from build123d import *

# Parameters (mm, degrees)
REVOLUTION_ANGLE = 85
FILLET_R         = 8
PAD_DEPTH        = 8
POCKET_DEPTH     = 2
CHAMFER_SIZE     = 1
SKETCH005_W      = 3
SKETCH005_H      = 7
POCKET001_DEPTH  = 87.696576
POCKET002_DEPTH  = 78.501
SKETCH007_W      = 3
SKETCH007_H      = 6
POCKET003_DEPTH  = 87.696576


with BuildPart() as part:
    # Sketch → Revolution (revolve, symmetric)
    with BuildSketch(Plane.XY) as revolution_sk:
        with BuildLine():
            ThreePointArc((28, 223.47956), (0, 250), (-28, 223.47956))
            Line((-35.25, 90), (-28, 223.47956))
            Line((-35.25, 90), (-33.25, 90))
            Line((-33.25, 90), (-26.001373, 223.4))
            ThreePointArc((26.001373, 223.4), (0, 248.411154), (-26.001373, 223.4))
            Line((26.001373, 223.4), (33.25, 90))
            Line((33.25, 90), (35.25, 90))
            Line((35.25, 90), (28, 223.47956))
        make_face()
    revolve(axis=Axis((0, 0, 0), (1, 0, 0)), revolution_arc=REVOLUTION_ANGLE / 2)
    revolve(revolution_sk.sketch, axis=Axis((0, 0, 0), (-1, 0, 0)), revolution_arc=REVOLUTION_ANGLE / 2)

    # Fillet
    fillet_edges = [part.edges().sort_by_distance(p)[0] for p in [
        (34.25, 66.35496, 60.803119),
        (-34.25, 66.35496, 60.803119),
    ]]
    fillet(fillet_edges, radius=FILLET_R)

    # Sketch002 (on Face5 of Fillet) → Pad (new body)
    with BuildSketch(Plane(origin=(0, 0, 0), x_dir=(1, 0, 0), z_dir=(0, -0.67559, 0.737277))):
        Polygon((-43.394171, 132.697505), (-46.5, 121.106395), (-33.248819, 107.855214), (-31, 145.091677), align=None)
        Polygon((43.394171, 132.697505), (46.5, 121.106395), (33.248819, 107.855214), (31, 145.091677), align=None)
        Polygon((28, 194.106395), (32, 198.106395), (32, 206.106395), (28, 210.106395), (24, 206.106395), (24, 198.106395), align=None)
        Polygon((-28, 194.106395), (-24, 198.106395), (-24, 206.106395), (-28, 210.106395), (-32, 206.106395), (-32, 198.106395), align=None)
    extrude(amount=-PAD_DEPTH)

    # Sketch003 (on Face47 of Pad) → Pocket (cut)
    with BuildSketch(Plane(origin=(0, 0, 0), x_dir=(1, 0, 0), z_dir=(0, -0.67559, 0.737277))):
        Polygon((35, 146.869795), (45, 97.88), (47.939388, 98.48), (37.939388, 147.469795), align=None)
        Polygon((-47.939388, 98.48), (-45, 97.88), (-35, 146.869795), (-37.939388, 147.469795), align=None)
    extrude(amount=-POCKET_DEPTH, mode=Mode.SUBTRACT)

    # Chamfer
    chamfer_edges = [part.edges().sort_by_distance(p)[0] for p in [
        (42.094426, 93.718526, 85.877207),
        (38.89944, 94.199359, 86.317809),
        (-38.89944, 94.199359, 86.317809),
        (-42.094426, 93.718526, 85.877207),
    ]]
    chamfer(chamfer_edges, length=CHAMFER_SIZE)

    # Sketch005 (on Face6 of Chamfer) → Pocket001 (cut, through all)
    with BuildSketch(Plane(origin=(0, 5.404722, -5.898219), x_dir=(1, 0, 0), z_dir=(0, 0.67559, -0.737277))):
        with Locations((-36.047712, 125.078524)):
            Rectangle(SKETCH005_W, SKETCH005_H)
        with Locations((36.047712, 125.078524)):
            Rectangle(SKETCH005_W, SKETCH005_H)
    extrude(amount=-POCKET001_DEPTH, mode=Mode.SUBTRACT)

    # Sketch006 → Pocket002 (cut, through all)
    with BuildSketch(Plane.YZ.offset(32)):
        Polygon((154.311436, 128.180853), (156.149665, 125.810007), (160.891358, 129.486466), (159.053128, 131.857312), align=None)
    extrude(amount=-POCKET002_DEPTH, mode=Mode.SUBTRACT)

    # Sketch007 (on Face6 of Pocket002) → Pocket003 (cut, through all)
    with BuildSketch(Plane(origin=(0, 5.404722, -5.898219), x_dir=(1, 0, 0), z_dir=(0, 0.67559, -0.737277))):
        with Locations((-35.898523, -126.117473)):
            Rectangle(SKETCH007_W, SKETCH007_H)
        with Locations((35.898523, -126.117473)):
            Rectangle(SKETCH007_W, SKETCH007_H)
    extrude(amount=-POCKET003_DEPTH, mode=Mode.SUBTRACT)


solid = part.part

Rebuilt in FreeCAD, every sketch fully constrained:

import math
import FreeCAD as App
import Part
import Sketcher
Q = App.Units.Quantity


def edges_at(feature, points):
    """Names of the edges that pass closest to the given points."""
    edges = feature.Shape.Edges
    near = lambda p: min(range(len(edges)), key=lambda i: edges[i].distToShape(Part.Vertex(*p))[0])
    return sorted({f"Edge{near(p) + 1}" for p in points})


def add_polygon(sketch, points):
    """Adds a closed chain of lines whose ends are joined by coincident constraints."""
    first, n = sketch.GeometryCount, len(points)
    for a, b in zip(points, points[1:] + points[:1]):
        sketch.addGeometry(Part.LineSegment(App.Vector(*a, 0), App.Vector(*b, 0)), False)
    for i in range(n):
        sketch.addConstraint(Sketcher.Constraint("Coincident", first + i, 2, first + (i + 1) % n, 1))

doc = App.newDocument("Part")
body = doc.addObject("PartDesign::Body", "Body")

sketch1 = body.newObject("Sketcher::SketchObject", "Sketch")
sketch1.AttachmentSupport = (doc.getObject("XY_Plane"), [""])
sketch1.MapMode = "FlatFace"
sketch1.addGeometry([
    Part.ArcOfCircle(Part.Circle(App.Vector(0, 222, 0), App.Vector(0, 0, 1), 28), math.radians(3), math.radians(177)),
    Part.LineSegment(App.Vector(-28, 223.5, 0), App.Vector(-35.2, 90, 0)),
    Part.LineSegment(App.Vector(-35.2, 90, 0), App.Vector(-33.2, 90, 0)),
    Part.LineSegment(App.Vector(-33.2, 90, 0), App.Vector(-26, 223.4, 0)),
    Part.ArcOfCircle(Part.Circle(App.Vector(0, 222.4, 0), App.Vector(0, 0, 1), 26), math.radians(2), math.radians(178)),
    Part.LineSegment(App.Vector(26, 223.4, 0), App.Vector(33.2, 90, 0)),
    Part.LineSegment(App.Vector(33.2, 90, 0), App.Vector(35.2, 90, 0)),
    Part.LineSegment(App.Vector(35.2, 90, 0), App.Vector(28, 223.5, 0)),
], False)
sketch1.addConstraint([
    Sketcher.Constraint("Tangent", 0, 2, 1, 1),
    Sketcher.Constraint("Coincident", 1, 2, 2, 1),
    Sketcher.Constraint("Coincident", 2, 2, 3, 1),
    Sketcher.Constraint("Coincident", 3, 2, 4, 2),
    Sketcher.Constraint("Coincident", 4, 1, 5, 1),
    Sketcher.Constraint("Coincident", 5, 2, 6, 1),
    Sketcher.Constraint("Coincident", 6, 2, 7, 1),
    Sketcher.Constraint("Tangent", 7, 2, 0, 1),
    Sketcher.Constraint("Horizontal", 2),
    Sketcher.Constraint("Horizontal", 6),
    Sketcher.Constraint("Symmetric", 3, 2, 4, 1, -2),
    Sketcher.Constraint("Symmetric", 2, 2, 5, 2, -2),
    Sketcher.Constraint("Symmetric", 0, 2, 7, 2, -2),
    Sketcher.Constraint("DistanceX", 2, 1, 2, 2, Q("2 mm")),
    Sketcher.Constraint("DistanceX", 0, 2, -1, 1, Q("28 mm")),
    Sketcher.Constraint("DistanceY", -1, 1, 1, 2, Q("90 mm")),
    Sketcher.Constraint("DistanceY", -1, 1, 3, 2, Q("223.4 mm")),
    Sketcher.Constraint("DistanceX", 2, 2, 5, 2, Q("66.5 mm")),
    Sketcher.Constraint("Radius", 4, Q("26.020975 mm")),
    Sketcher.Constraint("Distance", 1, Q("133.676308 mm")),
    Sketcher.Constraint("DistanceY", -1, 1, 4, 3, Q("222.390179 mm")),
])
revolution = body.newObject("PartDesign::Revolution", "Revolution")
revolution.Profile = sketch1
revolution.ReferenceAxis = (sketch1, ["H_Axis"])
revolution.Angle = 42.5

sketch2 = body.newObject("Sketcher::SketchObject", "Sketch001")
sketch2.AttachmentSupport = (doc.getObject("XY_Plane"), [""])
sketch2.MapMode = "FlatFace"
sketch2.addGeometry([
    Part.ArcOfCircle(Part.Circle(App.Vector(0, 222, 0), App.Vector(0, 0, 1), 28), math.radians(3), math.radians(177)),
    Part.LineSegment(App.Vector(-28, 223.5, 0), App.Vector(-35.2, 90, 0)),
    Part.LineSegment(App.Vector(-35.2, 90, 0), App.Vector(-33.2, 90, 0)),
    Part.LineSegment(App.Vector(-33.2, 90, 0), App.Vector(-26, 223.4, 0)),
    Part.ArcOfCircle(Part.Circle(App.Vector(0, 222.4, 0), App.Vector(0, 0, 1), 26), math.radians(2), math.radians(178)),
    Part.LineSegment(App.Vector(26, 223.4, 0), App.Vector(33.2, 90, 0)),
    Part.LineSegment(App.Vector(33.2, 90, 0), App.Vector(35.2, 90, 0)),
    Part.LineSegment(App.Vector(35.2, 90, 0), App.Vector(28, 223.5, 0)),
], False)
sketch2.addConstraint([
    Sketcher.Constraint("Tangent", 0, 2, 1, 1),
    Sketcher.Constraint("Coincident", 1, 2, 2, 1),
    Sketcher.Constraint("Coincident", 2, 2, 3, 1),
    Sketcher.Constraint("Coincident", 3, 2, 4, 2),
    Sketcher.Constraint("Coincident", 4, 1, 5, 1),
    Sketcher.Constraint("Coincident", 5, 2, 6, 1),
    Sketcher.Constraint("Coincident", 6, 2, 7, 1),
    Sketcher.Constraint("Tangent", 7, 2, 0, 1),
    Sketcher.Constraint("Horizontal", 2),
    Sketcher.Constraint("Horizontal", 6),
    Sketcher.Constraint("Symmetric", 3, 2, 4, 1, -2),
    Sketcher.Constraint("Symmetric", 2, 2, 5, 2, -2),
    Sketcher.Constraint("Symmetric", 0, 2, 7, 2, -2),
    Sketcher.Constraint("DistanceX", 2, 1, 2, 2, Q("2 mm")),
    Sketcher.Constraint("DistanceX", 0, 2, -1, 1, Q("28 mm")),
    Sketcher.Constraint("DistanceY", -1, 1, 1, 2, Q("90 mm")),
    Sketcher.Constraint("DistanceY", -1, 1, 3, 2, Q("223.4 mm")),
    Sketcher.Constraint("DistanceX", 2, 2, 5, 2, Q("66.5 mm")),
    Sketcher.Constraint("Radius", 4, Q("26.020975 mm")),
    Sketcher.Constraint("Distance", 1, Q("133.676308 mm")),
    Sketcher.Constraint("DistanceY", -1, 1, 4, 3, Q("222.390179 mm")),
])
revolution2 = body.newObject("PartDesign::Revolution", "Revolution001")
revolution2.Profile = sketch2
revolution2.ReferenceAxis = (sketch2, ["H_Axis"])
revolution2.Angle = 42.5
revolution2.Reversed = True
doc.recompute()

fillet = body.newObject("PartDesign::Fillet", "Fillet")
fillet.Base = (revolution2, edges_at(revolution2, [(34.25, 66.355, 60.803), (-34.25, 66.355, 60.803)]))
fillet.Radius = 8

sketch3 = body.newObject("Sketcher::SketchObject", "Sketch002")
sketch3.Placement = App.Placement(App.Vector(0, 0, 0), App.Rotation(App.Vector(1, 0, 0), App.Vector(0, 0.737277286, 0.675590263), App.Vector(0, -0.675590263, 0.737277286), "ZXY"))
add_polygon(sketch3, [(-43, 133), (-46, 121), (-33, 108), (-31, 145)])
add_polygon(sketch3, [(46, 121), (43, 133), (31, 145), (33, 108)])
add_polygon(sketch3, [(28, 194), (32, 198), (32, 206), (28, 210), (24, 206), (24, 198)])
add_polygon(sketch3, [(-28, 194), (-24, 198), (-24, 206), (-28, 210), (-32, 206), (-32, 198)])
sketch3.addConstraint([
    Sketcher.Constraint("Vertical", 9),
    Sketcher.Constraint("Vertical", 12),
    Sketcher.Constraint("Vertical", 15),
    Sketcher.Constraint("Vertical", 18),
    Sketcher.Constraint("Symmetric", 3, 2, 4, 2, -2),
    Sketcher.Constraint("Symmetric", 2, 2, 5, 2, -2),
    Sketcher.Constraint("Symmetric", 1, 2, 6, 2, -2),
    Sketcher.Constraint("Symmetric", 0, 2, 7, 2, -2),
    Sketcher.Constraint("Symmetric", 12, 2, 14, 2, -2),
    Sketcher.Constraint("Symmetric", 10, 2, 16, 2, -2),
    Sketcher.Constraint("Symmetric", 9, 2, 17, 2, -2),
    Sketcher.Constraint("Symmetric", 13, 2, 19, 2, -2),
    Sketcher.Constraint("Perpendicular", 1, 3),
    Sketcher.Constraint("Perpendicular", 3, 5),
    Sketcher.Constraint("Parallel", 7, 8),
    Sketcher.Constraint("Perpendicular", 8, 10),
    Sketcher.Constraint("Perpendicular", 10, 11),
    Sketcher.Constraint("Perpendicular", 11, 13),
    Sketcher.Constraint("Perpendicular", 14, 16),
    Sketcher.Constraint("Perpendicular", 17, 19),
    Sketcher.Constraint("Horizontal", 9, 2, 11, 2),
    Sketcher.Constraint("Horizontal", 8, 2, 12, 2),
    Sketcher.Constraint("DistanceY", 9, 1, 9, 2, Q("8 mm")),
    Sketcher.Constraint("Angle", 0, Q("-105.000002 deg")),
    Sketcher.Constraint("Distance", 0, Q("12 mm")),
    Sketcher.Constraint("DistanceX", 2, 2, -1, 1, Q("31 mm")),
    Sketcher.Constraint("DistanceX", -1, 1, 8, 2, Q("32 mm")),
    Sketcher.Constraint("DistanceX", -1, 1, 10, 2, Q("28 mm")),
    Sketcher.Constraint("DistanceY", 7, 2, 8, 2, Q("77 mm")),
    Sketcher.Constraint("DistanceX", 0, 2, -1, 1, Q("46.5 mm")),
    Sketcher.Constraint("Distance", 1, Q("18.74 mm")),
    Sketcher.Constraint("DistanceY", -1, 1, 0, 2, Q("121.106395 mm")),
])
pad1 = body.newObject("PartDesign::Pad", "Pad")
pad1.Profile = sketch3
pad1.Length = 8
pad1.Reversed = True

sketch4 = body.newObject("Sketcher::SketchObject", "Sketch003")
sketch4.Placement = App.Placement(App.Vector(0, 0, 0), App.Rotation(App.Vector(1, 0, 0), App.Vector(0, 0.737277286, 0.675590263), App.Vector(0, -0.675590263, 0.737277286), "ZXY"))
add_polygon(sketch4, [(35, 146.9), (45, 97.9), (47.9, 98.5), (37.9, 147.5)])
add_polygon(sketch4, [(-47.9, 98.5), (-45, 97.9), (-35, 146.9), (-37.9, 147.5)])
sketch4.addConstraint([
    Sketcher.Constraint("Symmetric", 0, 2, 4, 2, -2),
    Sketcher.Constraint("Symmetric", 3, 2, 5, 2, -2),
    Sketcher.Constraint("Symmetric", 2, 2, 6, 2, -2),
    Sketcher.Constraint("Symmetric", 1, 2, 7, 2, -2),
    Sketcher.Constraint("Perpendicular", 0, 1),
    Sketcher.Constraint("Perpendicular", 1, 2),
    Sketcher.Constraint("Perpendicular", 2, 3),
    Sketcher.Constraint("Distance", 0, Q("50 mm")),
    Sketcher.Constraint("Distance", 1, Q("3 mm")),
    Sketcher.Constraint("DistanceX", -1, 1, 0, 2, Q("45 mm")),
    Sketcher.Constraint("DistanceX", -1, 1, 3, 2, Q("35 mm")),
    Sketcher.Constraint("DistanceY", -1, 1, 0, 2, Q("97.88 mm")),
])
pocket1 = body.newObject("PartDesign::Pocket", "Pocket")
pocket1.Profile = sketch4
pocket1.Length = 2
doc.recompute()

chamfer = body.newObject("PartDesign::Chamfer", "Chamfer")
chamfer.Base = (pocket1, edges_at(pocket1, [
    (42.094, 93.719, 85.877),
    (38.899, 94.199, 86.318),
    (-38.899, 94.199, 86.318),
    (-42.094, 93.719, 85.877),
]))
chamfer.Size = 1

sketch5 = body.newObject("Sketcher::SketchObject", "Sketch004")
sketch5.Placement = App.Placement(App.Vector(0, 5.404722, -5.898219), App.Rotation(App.Vector(1, 0, 0), App.Vector(0, -0.737277286, -0.675590263), App.Vector(0, 0.675590263, -0.737277286), "ZXY"))
add_polygon(sketch5, [(-37.5, 128.6), (-37.5, 121.6), (-34.5, 121.6), (-34.5, 128.6)])
add_polygon(sketch5, [(34.5, 128.6), (34.5, 121.6), (37.5, 121.6), (37.5, 128.6)])
sketch5.addConstraint([
    Sketcher.Constraint("Vertical", 0),
    Sketcher.Constraint("Horizontal", 1),
    Sketcher.Constraint("Vertical", 2),
    Sketcher.Constraint("Horizontal", 3),
    Sketcher.Constraint("Vertical", 4),
    Sketcher.Constraint("Horizontal", 5),
    Sketcher.Constraint("Vertical", 6),
    Sketcher.Constraint("Horizontal", 7),
    Sketcher.Constraint("Symmetric", 1, 2, 4, 2, -2),
    Sketcher.Constraint("Symmetric", 3, 2, 6, 2, -2),
    Sketcher.Constraint("DistanceX", 1, 1, 1, 2, Q("3 mm")),
    Sketcher.Constraint("DistanceY", 0, 2, 0, 1, Q("7 mm")),
    Sketcher.Constraint("DistanceX", 0, 2, -1, 1, Q("37.547712 mm")),
    Sketcher.Constraint("DistanceY", -1, 1, 0, 2, Q("121.578524 mm")),
])
pocket2 = body.newObject("PartDesign::Pocket", "Pocket001")
pocket2.Profile = sketch5
pocket2.Type = "ThroughAll"

sketch6 = body.newObject("Sketcher::SketchObject", "Sketch005")
sketch6.AttachmentSupport = (doc.getObject("YZ_Plane"), [""])
sketch6.MapMode = "FlatFace"
sketch6.AttachmentOffset = App.Placement(App.Vector(0, 0, 32), App.Rotation())
add_polygon(sketch6, [(154.3, 128.2), (156.1, 125.8), (160.9, 129.5), (159.1, 131.9)])
sketch6.addConstraint([
    Sketcher.Constraint("Perpendicular", 0, 1),
    Sketcher.Constraint("Perpendicular", 1, 2),
    Sketcher.Constraint("Perpendicular", 2, 3),
    Sketcher.Constraint("Distance", 0, Q("2.999999 mm")),
    Sketcher.Constraint("Distance", 1, Q("6 mm")),
    Sketcher.Constraint("DistanceX", -1, 1, 1, 2, Q("160.891358 mm")),
    Sketcher.Constraint("DistanceY", -1, 1, 2, 2, Q("131.857312 mm")),
    Sketcher.Constraint("DistanceY", 0, 2, 1, 2, Q("3.676459 mm")),
])
pocket3 = body.newObject("PartDesign::Pocket", "Pocket002")
pocket3.Profile = sketch6
pocket3.Type = "ThroughAll"

sketch7 = body.newObject("Sketcher::SketchObject", "Sketch006")
sketch7.Placement = App.Placement(App.Vector(0, 5.404722, -5.898219), App.Rotation(App.Vector(1, 0, 0), App.Vector(0, -0.737277286, -0.675590263), App.Vector(0, 0.675590263, -0.737277286), "ZXY"))
add_polygon(sketch7, [(-37.4, -123.1), (-37.4, -129.1), (-34.4, -129.1), (-34.4, -123.1)])
add_polygon(sketch7, [(34.4, -123.1), (34.4, -129.1), (37.4, -129.1), (37.4, -123.1)])
sketch7.addConstraint([
    Sketcher.Constraint("Vertical", 0),
    Sketcher.Constraint("Horizontal", 1),
    Sketcher.Constraint("Vertical", 2),
    Sketcher.Constraint("Horizontal", 3),
    Sketcher.Constraint("Vertical", 4),
    Sketcher.Constraint("Horizontal", 5),
    Sketcher.Constraint("Vertical", 6),
    Sketcher.Constraint("Horizontal", 7),
    Sketcher.Constraint("Symmetric", 1, 2, 4, 2, -2),
    Sketcher.Constraint("Symmetric", 3, 2, 6, 2, -2),
    Sketcher.Constraint("DistanceX", 1, 1, 1, 2, Q("3 mm")),
    Sketcher.Constraint("DistanceY", 0, 2, 0, 1, Q("6 mm")),
    Sketcher.Constraint("DistanceX", 0, 2, -1, 1, Q("37.398523 mm")),
    Sketcher.Constraint("DistanceY", 0, 2, -1, 1, Q("129.117473 mm")),
])
pocket4 = body.newObject("PartDesign::Pocket", "Pocket003")
pocket4.Profile = sketch7
pocket4.Type = "ThroughAll"

doc.recompute()
